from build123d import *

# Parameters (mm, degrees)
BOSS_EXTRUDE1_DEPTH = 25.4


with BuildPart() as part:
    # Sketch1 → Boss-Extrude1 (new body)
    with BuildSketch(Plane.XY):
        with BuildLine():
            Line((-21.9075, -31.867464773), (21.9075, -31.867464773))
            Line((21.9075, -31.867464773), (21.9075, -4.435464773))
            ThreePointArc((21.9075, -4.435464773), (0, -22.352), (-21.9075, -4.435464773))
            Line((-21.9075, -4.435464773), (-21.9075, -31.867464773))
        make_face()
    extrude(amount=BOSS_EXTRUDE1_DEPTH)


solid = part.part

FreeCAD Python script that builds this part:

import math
import FreeCAD as App
import Part
import Sketcher
Q = App.Units.Quantity

doc = App.newDocument("Part")
params = doc.addObject("Spreadsheet::Sheet", "Params")
for row, (alias, value) in enumerate([
    ("sketch1_radius", "0.88 in"),
    ("sketch1_height", "1.08 in"),
    ("sketch1_width", "1.725 in"),
    ("pad1_length", "1 in"),
], start=1):
    params.set(f"A{row}", alias)
    params.set(f"B{row}", "=" + value)
    params.setAlias(f"B{row}", alias)

body = doc.addObject("PartDesign::Body", "Body")

sketch1 = body.newObject("Sketcher::SketchObject", "Sketch")
sketch1.AttachmentSupport = (doc.getObject("XY_Plane"), [""])
sketch1.MapMode = "FlatFace"
sketch1.addGeometry(Part.LineSegment(App.Vector(-22, -32, 0), App.Vector(22, -32, 0)), False)
sketch1.addGeometry(Part.LineSegment(App.Vector(22, -32, 0), App.Vector(22, -4, 0)), False)
sketch1.addGeometry(Part.ArcOfCircle(Part.Circle(App.Vector(0, 0, 0), App.Vector(0, 0, 1), 22), math.radians(-169), math.radians(-11)), False)
sketch1.addGeometry(Part.LineSegment(App.Vector(-22, -4, 0), App.Vector(-22, -32, 0)), False)
sketch1.addConstraint(Sketcher.Constraint("Coincident", 0, 2, 1, 1))
sketch1.addConstraint(Sketcher.Constraint("Coincident", 1, 2, 2, 2))
sketch1.addConstraint(Sketcher.Constraint("Coincident", 2, 1, 3, 1))
sketch1.addConstraint(Sketcher.Constraint("Coincident", 3, 2, 0, 1))
sketch1.addConstraint(Sketcher.Constraint("Horizontal", 0))
sketch1.addConstraint(Sketcher.Constraint("Vertical", 1))
sketch1.addConstraint(Sketcher.Constraint("Vertical", 3))
sketch1.addConstraint(Sketcher.Constraint("Coincident", 2, 3, -1, 1))
sketch1.addConstraint(Sketcher.Constraint("Horizontal", 1, 2, 2, 1))
sketch1.addConstraint(Sketcher.Constraint("Radius", 2, Q("0.88 in")))
sketch1.addConstraint(Sketcher.Constraint("DistanceY", 1, 1, 1, 2, Q("1.08 in")))
sketch1.addConstraint(Sketcher.Constraint("DistanceX", 0, 1, 0, 2, Q("1.725 in")))
sketch1.setExpression("Constraints[9]", "Params.sketch1_radius")
sketch1.setExpression("Constraints[10]", "Params.sketch1_height")
sketch1.setExpression("Constraints[11]", "Params.sketch1_width")
pad1 = body.newObject("PartDesign::Pad", "Pad")
pad1.Profile = sketch1
pad1.setExpression("Length", "Params.pad1_length")

doc.recompute()
